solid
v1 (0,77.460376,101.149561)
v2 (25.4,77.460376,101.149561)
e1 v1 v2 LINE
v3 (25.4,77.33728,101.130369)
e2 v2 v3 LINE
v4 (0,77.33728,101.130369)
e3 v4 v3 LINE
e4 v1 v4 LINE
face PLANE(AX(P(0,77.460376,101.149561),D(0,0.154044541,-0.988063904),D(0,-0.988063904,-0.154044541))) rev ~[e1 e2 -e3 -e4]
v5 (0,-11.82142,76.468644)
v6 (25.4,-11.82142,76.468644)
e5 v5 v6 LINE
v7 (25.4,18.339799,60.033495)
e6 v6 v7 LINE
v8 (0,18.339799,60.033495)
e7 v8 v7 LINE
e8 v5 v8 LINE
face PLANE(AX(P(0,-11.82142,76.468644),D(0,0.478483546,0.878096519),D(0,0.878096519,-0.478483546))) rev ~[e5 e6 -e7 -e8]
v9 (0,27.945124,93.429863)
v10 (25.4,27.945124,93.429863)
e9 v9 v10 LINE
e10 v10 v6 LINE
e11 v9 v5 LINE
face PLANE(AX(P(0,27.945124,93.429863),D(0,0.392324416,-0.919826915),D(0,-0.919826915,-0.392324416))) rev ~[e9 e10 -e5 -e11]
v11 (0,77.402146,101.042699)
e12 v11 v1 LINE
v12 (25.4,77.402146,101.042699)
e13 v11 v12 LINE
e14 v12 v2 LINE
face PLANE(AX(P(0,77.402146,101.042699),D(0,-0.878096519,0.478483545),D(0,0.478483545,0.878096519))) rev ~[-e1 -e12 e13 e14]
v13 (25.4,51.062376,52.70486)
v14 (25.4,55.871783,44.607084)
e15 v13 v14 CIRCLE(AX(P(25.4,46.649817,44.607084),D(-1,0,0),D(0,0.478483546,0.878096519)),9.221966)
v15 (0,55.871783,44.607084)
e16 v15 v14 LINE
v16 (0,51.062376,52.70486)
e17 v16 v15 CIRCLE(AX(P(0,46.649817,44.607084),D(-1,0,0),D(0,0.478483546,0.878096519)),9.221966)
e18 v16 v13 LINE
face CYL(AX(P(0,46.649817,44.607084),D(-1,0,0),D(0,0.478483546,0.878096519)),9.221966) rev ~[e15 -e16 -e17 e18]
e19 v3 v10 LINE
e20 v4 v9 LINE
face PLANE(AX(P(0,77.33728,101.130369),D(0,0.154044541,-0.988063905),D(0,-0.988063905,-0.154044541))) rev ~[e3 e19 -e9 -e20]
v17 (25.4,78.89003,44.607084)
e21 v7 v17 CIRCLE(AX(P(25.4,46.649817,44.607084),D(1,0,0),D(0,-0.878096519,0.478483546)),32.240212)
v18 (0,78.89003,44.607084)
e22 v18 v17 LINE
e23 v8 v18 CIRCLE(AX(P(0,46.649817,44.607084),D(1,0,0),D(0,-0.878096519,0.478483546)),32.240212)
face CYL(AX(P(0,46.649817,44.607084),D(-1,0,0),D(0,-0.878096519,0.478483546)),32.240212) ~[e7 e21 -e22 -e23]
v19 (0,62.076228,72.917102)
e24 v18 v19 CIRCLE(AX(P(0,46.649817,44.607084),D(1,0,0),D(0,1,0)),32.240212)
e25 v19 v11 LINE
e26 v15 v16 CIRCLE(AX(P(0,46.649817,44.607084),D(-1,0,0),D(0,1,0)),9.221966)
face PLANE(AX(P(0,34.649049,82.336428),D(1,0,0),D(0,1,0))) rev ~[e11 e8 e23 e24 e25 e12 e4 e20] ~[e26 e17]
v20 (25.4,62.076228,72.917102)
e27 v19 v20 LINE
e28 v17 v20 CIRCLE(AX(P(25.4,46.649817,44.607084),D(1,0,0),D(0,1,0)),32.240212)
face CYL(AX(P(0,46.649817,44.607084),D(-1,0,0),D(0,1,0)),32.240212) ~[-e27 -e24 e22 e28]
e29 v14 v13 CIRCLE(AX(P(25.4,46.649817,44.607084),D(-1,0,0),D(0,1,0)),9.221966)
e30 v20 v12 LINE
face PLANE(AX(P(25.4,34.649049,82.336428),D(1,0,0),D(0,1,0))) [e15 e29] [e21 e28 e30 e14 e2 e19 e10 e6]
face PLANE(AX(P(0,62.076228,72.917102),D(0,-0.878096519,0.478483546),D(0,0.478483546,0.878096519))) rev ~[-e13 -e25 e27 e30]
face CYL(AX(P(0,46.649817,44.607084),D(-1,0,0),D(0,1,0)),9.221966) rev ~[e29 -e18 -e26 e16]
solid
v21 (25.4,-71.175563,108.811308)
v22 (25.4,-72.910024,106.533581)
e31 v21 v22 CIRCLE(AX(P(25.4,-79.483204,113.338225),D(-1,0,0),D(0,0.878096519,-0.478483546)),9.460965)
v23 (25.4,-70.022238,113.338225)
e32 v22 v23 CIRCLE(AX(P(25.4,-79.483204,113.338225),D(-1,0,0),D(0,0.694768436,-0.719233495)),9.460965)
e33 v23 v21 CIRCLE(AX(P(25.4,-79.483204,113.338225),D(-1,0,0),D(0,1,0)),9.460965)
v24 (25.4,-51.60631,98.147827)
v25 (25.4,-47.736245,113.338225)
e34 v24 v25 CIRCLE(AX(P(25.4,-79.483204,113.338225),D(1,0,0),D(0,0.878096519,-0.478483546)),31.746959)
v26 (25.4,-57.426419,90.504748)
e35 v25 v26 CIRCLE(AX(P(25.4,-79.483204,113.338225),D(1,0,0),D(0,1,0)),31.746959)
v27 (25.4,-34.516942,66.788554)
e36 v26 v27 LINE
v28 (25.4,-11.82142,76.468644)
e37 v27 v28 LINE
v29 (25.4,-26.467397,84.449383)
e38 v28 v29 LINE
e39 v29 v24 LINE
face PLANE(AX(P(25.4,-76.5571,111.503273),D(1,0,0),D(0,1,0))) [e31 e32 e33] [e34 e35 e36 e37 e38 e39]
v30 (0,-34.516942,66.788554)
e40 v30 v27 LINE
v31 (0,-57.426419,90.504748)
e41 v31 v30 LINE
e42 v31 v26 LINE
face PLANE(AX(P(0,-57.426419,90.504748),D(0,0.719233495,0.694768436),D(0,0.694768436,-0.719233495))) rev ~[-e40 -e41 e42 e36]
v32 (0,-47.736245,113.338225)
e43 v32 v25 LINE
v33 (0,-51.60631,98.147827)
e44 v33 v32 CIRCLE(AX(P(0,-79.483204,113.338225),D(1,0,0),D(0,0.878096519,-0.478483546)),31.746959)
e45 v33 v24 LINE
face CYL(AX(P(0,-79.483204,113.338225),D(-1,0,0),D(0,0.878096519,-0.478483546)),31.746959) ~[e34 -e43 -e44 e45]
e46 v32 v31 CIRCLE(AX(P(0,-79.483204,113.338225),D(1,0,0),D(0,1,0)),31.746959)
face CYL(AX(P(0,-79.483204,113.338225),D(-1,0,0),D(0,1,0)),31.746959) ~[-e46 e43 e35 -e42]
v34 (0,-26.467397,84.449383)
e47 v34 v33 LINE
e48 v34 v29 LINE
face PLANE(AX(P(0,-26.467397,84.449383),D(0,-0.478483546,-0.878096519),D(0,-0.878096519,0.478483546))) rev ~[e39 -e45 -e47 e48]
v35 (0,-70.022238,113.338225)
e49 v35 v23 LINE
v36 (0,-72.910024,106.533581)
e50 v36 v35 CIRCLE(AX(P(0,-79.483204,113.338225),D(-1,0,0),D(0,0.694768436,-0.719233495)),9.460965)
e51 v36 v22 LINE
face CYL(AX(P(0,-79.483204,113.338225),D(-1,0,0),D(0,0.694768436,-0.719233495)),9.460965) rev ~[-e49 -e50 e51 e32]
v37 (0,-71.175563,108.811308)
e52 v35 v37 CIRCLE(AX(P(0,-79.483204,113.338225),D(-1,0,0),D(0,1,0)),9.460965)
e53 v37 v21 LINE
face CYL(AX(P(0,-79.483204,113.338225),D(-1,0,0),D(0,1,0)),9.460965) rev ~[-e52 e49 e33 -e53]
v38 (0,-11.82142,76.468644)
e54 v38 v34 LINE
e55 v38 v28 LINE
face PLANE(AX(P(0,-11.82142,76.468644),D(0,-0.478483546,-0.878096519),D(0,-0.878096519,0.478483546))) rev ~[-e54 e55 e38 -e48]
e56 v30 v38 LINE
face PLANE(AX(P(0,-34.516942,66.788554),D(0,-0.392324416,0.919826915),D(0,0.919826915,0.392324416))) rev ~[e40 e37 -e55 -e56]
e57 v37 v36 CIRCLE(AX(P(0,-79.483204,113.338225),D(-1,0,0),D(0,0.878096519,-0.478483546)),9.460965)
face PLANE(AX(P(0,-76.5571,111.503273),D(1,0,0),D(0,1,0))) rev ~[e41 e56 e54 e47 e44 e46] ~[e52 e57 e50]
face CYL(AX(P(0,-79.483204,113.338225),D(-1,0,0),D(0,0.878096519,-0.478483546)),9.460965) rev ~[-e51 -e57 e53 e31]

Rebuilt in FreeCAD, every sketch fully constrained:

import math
import FreeCAD as App
import Part
import Sketcher
from FreeCAD import Vector
Q = App.Units.Quantity

doc = App.newDocument("Part")
body = doc.addObject("PartDesign::Body", "Body")

# Sketch on YZ plane
sketch1 = doc.addObject("Sketcher::SketchObject", "Sketch")
body.addObject(sketch1)
sketch1.AttachmentSupport = (doc.YZ_Plane, [""])
sketch1.MapMode = "FlatFace"
sketch1.addGeometry([
    Part.ArcOfCircle(Part.Circle(Vector(-79.483204, 113.338225, 0), Vector(0, 0, 1), 31.746959), math.radians(-28.586407), math.radians(0)),  # 0
    Part.ArcOfCircle(Part.Circle(Vector(-79.483204, 113.338225, 0), Vector(0, 0, 1), 31.746959), math.radians(0), math.radians(314.008767)),  # 1
    Part.LineSegment(Vector(-57.426419, 90.504748, 0), Vector(-34.516942, 66.788554, 0)),  # 2
    Part.LineSegment(Vector(-34.516942, 66.788554, 0), Vector(-11.82142, 76.468644, 0)),  # 3
    Part.LineSegment(Vector(-11.82142, 76.468644, 0), Vector(-26.467397, 84.449383, 0)),  # 4
    Part.LineSegment(Vector(-26.467397, 84.449383, 0), Vector(-51.60631, 98.147827, 0)),  # 5
    Part.ArcOfCircle(Part.Circle(Vector(-79.483204, 113.338225, 0), Vector(0, 0, 1), 9.460965), math.radians(-28.586407), math.radians(0)),  # 6
    Part.ArcOfCircle(Part.Circle(Vector(-79.483204, 113.338225, 0), Vector(0, 0, 1), 9.460965), math.radians(-45.991233), math.radians(-28.586407)),  # 7
    Part.ArcOfCircle(Part.Circle(Vector(-79.483204, 113.338225, 0), Vector(0, 0, 1), 9.460965), math.radians(0), math.radians(314.008767)),  # 8
], False)
sketch1.addConstraint([
    Sketcher.Constraint("Tangent", 0, 2, 1, 1),
    Sketcher.Constraint("Coincident", 1, 2, 2, 1),
    Sketcher.Constraint("Coincident", 2, 2, 3, 1),
    Sketcher.Constraint("Coincident", 3, 2, 4, 1),
    Sketcher.Constraint("Coincident", 4, 2, 5, 1),
    Sketcher.Constraint("Coincident", 5, 2, 0, 1),
    Sketcher.Constraint("Tangent", 6, 1, 7, 2),
    Sketcher.Constraint("Tangent", 7, 1, 8, 2),
    Sketcher.Constraint("Tangent", 8, 1, 6, 2),
    Sketcher.Constraint("Coincident", 6, 3, 0, 3),
    Sketcher.Constraint("Equal", 0, 1),
    Sketcher.Constraint("Parallel", 4, 5),
    Sketcher.Constraint("Horizontal", 8, 3, 0, 2),
    Sketcher.Constraint("Horizontal", 0, 2, 8, 1),
    Sketcher.Constraint("Radius", 0, 31.746959),
    Sketcher.Constraint("Radius", 6, 9.460965),
    Sketcher.Constraint("DistanceX", 1, 2, 3, 2, 45.604999),
    Sketcher.Constraint("DistanceX", 1, 2, -1, 1, 57.426419),
    Sketcher.Constraint("DistanceY", -1, 1, 1, 2, 90.504748),
    Sketcher.Constraint("DistanceX", 2, 2, -1, 1, 34.516942),
    Sketcher.Constraint("DistanceX", 5, 2, -1, 1, 51.60631),
    Sketcher.Constraint("DistanceY", -1, 1, 6, 1, 108.811308),
    Sketcher.Constraint("DistanceY", -1, 1, 7, 1, 106.533581),
    Sketcher.Constraint("DistanceX", 8, 1, -1, 1, 70.022238),
    Sketcher.Constraint("DistanceY", 2, 2, 0, 2, 46.54967),
    Sketcher.Constraint("DistanceY", 2, 2, 3, 2, 9.68009),
    Sketcher.Constraint("DistanceY", 3, 2, 4, 2, 7.980739),
])
pad1 = doc.addObject("PartDesign::Pad", "Pad")
body.addObject(pad1)
pad1.Profile = sketch1
pad1.Length = Q("1 in")
body2 = doc.addObject("PartDesign::Body", "Body001")

# Sketch on YZ plane
sketch2 = doc.addObject("Sketcher::SketchObject", "Sketch001")
body2.addObject(sketch2)
sketch2.AttachmentSupport = (doc.getObject("YZ_Plane001"), [""])
sketch2.MapMode = "FlatFace"
sketch2.addGeometry([
    Part.LineSegment(Vector(27.945124, 93.429863, 0), Vector(-11.82142, 76.468644, 0)),  # 0
    Part.LineSegment(Vector(-11.82142, 76.468644, 0), Vector(18.339799, 60.033495, 0)),  # 1
    Part.ArcOfCircle(Part.Circle(Vector(46.649817, 44.607084, 0), Vector(0, 0, 1), 32.240212), math.radians(151.413593), math.radians(360)),  # 2
    Part.ArcOfCircle(Part.Circle(Vector(46.649817, 44.607084, 0), Vector(0, 0, 1), 32.240212), math.radians(0), math.radians(61.413593)),  # 3
    Part.LineSegment(Vector(62.076228, 72.917102, 0), Vector(77.402146, 101.042699, 0)),  # 4
    Part.LineSegment(Vector(77.402146, 101.042699, 0), Vector(77.460376, 101.149561, 0)),  # 5
    Part.LineSegment(Vector(77.460376, 101.149561, 0), Vector(77.33728, 101.130369, 0)),  # 6
    Part.LineSegment(Vector(77.33728, 101.130369, 0), Vector(27.945124, 93.429863, 0)),  # 7
    Part.ArcOfCircle(Part.Circle(Vector(46.649817, 44.607084, 0), Vector(0, 0, 1), 9.221966), math.radians(0), math.radians(61.413593)),  # 8
    Part.ArcOfCircle(Part.Circle(Vector(46.649817, 44.607084, 0), Vector(0, 0, 1), 9.221966), math.radians(61.413593), math.radians(360)),  # 9
], False)
sketch2.addConstraint([
    Sketcher.Constraint("Coincident", 0, 2, 1, 1),
    Sketcher.Constraint("Coincident", 1, 2, 2, 1),
    Sketcher.Constraint("Coincident", 2, 2, 3, 1),
    Sketcher.Constraint("Coincident", 3, 2, 4, 1),
    Sketcher.Constraint("Coincident", 4, 2, 5, 1),
    Sketcher.Constraint("Coincident", 5, 2, 6, 1),
    Sketcher.Constraint("Coincident", 6, 2, 7, 1),
    Sketcher.Constraint("Coincident", 7, 2, 0, 1),
    Sketcher.Constraint("Coincident", 8, 1, 9, 2),
    Sketcher.Constraint("Coincident", 9, 1, 8, 2),
    Sketcher.Constraint("Coincident", 3, 3, 2, 3),
    Sketcher.Constraint("Coincident", 8, 3, 2, 3),
    Sketcher.Constraint("Radius", 2, 32.240212),
    Sketcher.Constraint("Radius", 8, 9.221966),
    Sketcher.Constraint("Radius", 9, 9.221966),
    Sketcher.Constraint("DistanceX", -1, 1, 1, 2, 18.339799),
    Sketcher.Constraint("DistanceY", -1, 1, 4, 2, 101.042699),
    Sketcher.Constraint("DistanceX", 3, 2, 2, 2, 16.813801),
    Sketcher.Constraint("Distance", 1, 34.34841),
    Sketcher.Constraint("DistanceX", 0, 2, -1, 1, 11.82142),
    Sketcher.Constraint("DistanceX", -1, 1, 2, 2, 78.89003),
    Sketcher.Constraint("DistanceY", -1, 1, 5, 2, 101.149561),
    Sketcher.Constraint("DistanceX", -1, 1, 6, 2, 77.33728),
    Sketcher.Constraint("DistanceY", -1, 1, 6, 2, 101.130369),
    Sketcher.Constraint("DistanceY", -1, 1, 9, 1, 52.70486),
    Sketcher.Constraint("DistanceY", 2, 2, 1, 2, 15.426411),
    Sketcher.Constraint("DistanceX", 3, 3, 4, 2, 30.752329),
    Sketcher.Constraint("DistanceX", 4, 2, 5, 2, 0.05823),
    Sketcher.Constraint("DistanceY", 3, 2, 5, 2, 28.232458),
    Sketcher.Constraint("DistanceY", 1, 2, 7, 2, 33.396368),
    Sketcher.Constraint("Distance", 0, 43.232637),
    Sketcher.Constraint("DistanceY", -1, 1, 8, 1, 44.607084),
])
pad2 = doc.addObject("PartDesign::Pad", "Pad001")
body2.addObject(pad2)
pad2.Profile = sketch2
pad2.Length = Q("1 in")

doc.recompute()
